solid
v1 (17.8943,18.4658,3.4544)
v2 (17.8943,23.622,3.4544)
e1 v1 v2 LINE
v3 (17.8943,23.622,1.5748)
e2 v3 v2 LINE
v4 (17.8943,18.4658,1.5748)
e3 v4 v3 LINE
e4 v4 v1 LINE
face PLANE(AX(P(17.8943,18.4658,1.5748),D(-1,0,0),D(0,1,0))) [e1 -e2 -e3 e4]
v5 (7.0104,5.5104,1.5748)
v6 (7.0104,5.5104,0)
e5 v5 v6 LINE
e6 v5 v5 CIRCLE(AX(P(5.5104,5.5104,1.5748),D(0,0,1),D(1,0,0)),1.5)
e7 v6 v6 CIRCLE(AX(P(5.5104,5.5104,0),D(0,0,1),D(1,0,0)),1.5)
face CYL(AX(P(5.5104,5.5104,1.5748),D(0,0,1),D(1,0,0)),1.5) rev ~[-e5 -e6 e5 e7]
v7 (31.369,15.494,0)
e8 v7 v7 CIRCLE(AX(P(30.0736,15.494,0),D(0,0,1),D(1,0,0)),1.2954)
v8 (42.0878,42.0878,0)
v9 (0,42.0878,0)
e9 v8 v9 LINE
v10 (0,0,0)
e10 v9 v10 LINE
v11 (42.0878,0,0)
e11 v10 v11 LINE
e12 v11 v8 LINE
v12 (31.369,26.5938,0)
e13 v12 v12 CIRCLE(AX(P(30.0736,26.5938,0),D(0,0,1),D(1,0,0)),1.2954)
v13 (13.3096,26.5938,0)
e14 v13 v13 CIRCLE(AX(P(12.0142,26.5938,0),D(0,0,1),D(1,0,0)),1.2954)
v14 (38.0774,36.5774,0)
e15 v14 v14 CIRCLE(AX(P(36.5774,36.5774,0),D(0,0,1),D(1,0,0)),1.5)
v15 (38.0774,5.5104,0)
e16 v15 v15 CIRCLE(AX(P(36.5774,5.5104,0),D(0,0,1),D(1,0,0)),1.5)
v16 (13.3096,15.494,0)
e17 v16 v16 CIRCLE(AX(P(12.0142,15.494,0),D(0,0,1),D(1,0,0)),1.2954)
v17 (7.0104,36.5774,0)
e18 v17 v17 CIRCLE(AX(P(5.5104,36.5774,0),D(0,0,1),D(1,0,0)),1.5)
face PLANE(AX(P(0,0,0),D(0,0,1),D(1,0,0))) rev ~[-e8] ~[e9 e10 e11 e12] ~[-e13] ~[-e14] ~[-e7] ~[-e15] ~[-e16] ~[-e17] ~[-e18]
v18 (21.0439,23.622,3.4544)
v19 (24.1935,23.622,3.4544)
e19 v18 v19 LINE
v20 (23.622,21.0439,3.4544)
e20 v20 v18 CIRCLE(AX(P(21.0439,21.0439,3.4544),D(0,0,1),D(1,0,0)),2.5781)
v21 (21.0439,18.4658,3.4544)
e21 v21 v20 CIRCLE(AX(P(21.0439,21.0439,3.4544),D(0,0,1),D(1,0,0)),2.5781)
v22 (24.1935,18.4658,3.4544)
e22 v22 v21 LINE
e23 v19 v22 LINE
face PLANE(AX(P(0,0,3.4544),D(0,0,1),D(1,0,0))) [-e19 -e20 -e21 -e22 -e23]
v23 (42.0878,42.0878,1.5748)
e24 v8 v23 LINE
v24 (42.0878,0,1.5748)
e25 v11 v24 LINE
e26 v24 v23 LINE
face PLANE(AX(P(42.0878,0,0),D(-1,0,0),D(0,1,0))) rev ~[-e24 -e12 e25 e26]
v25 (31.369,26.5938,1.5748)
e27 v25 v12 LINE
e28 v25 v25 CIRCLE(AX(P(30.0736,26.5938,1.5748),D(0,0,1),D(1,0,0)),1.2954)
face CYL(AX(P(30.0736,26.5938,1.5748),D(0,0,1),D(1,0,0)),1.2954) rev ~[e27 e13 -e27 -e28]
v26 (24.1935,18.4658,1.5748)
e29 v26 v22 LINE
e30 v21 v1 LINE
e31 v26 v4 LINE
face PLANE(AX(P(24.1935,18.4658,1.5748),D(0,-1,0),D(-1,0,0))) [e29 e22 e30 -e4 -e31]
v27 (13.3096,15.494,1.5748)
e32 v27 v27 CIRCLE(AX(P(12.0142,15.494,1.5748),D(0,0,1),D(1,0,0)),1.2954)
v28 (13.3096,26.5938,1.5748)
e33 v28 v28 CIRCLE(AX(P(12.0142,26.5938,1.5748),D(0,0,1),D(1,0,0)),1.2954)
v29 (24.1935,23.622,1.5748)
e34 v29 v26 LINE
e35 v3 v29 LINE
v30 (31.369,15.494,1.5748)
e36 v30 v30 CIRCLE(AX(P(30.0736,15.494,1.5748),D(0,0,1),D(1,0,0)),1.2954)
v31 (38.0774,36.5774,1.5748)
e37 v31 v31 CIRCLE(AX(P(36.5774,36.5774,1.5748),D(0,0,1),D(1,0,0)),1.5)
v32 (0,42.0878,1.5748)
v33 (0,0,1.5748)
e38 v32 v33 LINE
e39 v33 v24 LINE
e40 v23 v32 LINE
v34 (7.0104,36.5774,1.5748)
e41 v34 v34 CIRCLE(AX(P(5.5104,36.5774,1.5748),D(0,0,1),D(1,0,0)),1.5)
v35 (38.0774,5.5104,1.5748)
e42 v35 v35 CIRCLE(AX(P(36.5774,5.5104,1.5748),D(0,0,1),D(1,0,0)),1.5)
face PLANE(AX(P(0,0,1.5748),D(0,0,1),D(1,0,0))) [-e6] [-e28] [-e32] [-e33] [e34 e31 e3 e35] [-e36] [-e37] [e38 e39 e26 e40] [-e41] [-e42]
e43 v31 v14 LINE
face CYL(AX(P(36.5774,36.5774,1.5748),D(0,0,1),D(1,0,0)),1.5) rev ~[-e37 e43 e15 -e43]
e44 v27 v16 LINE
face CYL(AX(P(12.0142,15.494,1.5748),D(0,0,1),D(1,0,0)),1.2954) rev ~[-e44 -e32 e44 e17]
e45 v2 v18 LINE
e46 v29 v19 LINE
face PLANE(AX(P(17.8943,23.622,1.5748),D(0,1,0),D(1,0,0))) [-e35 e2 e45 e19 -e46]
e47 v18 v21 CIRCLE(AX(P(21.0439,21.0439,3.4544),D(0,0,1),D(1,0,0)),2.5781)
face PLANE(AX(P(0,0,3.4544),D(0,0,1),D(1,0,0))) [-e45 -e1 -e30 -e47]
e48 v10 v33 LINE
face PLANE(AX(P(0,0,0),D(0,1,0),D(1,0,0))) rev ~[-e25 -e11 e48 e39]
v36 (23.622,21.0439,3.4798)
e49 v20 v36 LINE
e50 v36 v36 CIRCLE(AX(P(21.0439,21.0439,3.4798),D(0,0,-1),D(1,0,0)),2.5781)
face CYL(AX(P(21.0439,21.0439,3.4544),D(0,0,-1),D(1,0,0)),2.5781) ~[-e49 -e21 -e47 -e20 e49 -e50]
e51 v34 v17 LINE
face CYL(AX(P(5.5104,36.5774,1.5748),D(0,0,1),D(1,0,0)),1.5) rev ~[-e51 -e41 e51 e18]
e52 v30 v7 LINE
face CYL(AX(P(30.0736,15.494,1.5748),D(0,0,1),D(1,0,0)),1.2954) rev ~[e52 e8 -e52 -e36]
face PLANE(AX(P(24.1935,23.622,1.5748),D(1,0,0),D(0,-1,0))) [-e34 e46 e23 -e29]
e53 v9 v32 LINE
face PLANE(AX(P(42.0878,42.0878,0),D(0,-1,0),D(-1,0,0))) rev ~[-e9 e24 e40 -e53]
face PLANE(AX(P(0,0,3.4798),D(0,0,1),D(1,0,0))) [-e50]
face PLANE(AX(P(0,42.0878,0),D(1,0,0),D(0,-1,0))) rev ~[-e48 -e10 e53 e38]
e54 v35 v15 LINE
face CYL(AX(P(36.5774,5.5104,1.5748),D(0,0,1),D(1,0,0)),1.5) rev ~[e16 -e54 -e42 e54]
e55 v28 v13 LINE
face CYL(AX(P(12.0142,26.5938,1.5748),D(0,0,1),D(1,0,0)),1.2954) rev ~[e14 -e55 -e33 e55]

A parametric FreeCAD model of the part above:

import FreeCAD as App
import Part
import Sketcher
Q = App.Units.Quantity

doc = App.newDocument("Part")
body = doc.addObject("PartDesign::Body", "Body")

# Sketch on XY plane
sketch1 = body.newObject("Sketcher::SketchObject", "Sketch")
sketch1.AttachmentSupport = (doc.getObject("XY_Plane"), [""])
sketch1.MapMode = "FlatFace"
sketch1.addGeometry([
    Part.LineSegment(App.Vector(0, 42.0878, 0), App.Vector(0, 0, 0)),
    Part.LineSegment(App.Vector(0, 0, 0), App.Vector(42.0878, 0, 0)),
    Part.LineSegment(App.Vector(42.0878, 0, 0), App.Vector(42.0878, 42.0878, 0)),
    Part.LineSegment(App.Vector(42.0878, 42.0878, 0), App.Vector(0, 42.0878, 0)),
], False)
sketch1.addConstraint([
    Sketcher.Constraint("Coincident", 0, 2, 1, 1),
    Sketcher.Constraint("Coincident", 1, 2, 2, 1),
    Sketcher.Constraint("Coincident", 2, 2, 3, 1),
    Sketcher.Constraint("Coincident", 3, 2, 0, 1),
    Sketcher.Constraint("Vertical", 0),
    Sketcher.Constraint("Horizontal", 1),
    Sketcher.Constraint("Vertical", 2),
    Sketcher.Constraint("Horizontal", 3),
    Sketcher.Constraint("Coincident", 0, 2, -1, 1),
    Sketcher.Constraint("Equal", 3, 0),
    Sketcher.Constraint("DistanceX", 1, 1, 1, 2, Q("1.657 in")),
])
pad1 = body.newObject("PartDesign::Pad", "Pad")
pad1.Profile = sketch1
pad1.Length = Q("0.062 in")

# Sketch on XY plane
sketch2 = body.newObject("Sketcher::SketchObject", "Sketch001")
sketch2.AttachmentSupport = (doc.getObject("XY_Plane"), [""])
sketch2.MapMode = "FlatFace"
sketch2.AttachmentOffset = App.Placement(App.Vector(0, 0, 0.062 * 25.4), App.Rotation())
sketch2.addGeometry([
    Part.Circle(App.Vector(5.5104, 36.5774, 0), App.Vector(0, 0, 1), 1.5),  # 0
    Part.Circle(App.Vector(36.5774, 36.5774, 0), App.Vector(0, 0, 1), 1.5),  # 1
    Part.Circle(App.Vector(36.5774, 5.5104, 0), App.Vector(0, 0, 1), 1.5),  # 2
    Part.Circle(App.Vector(5.5104, 5.5104, 0), App.Vector(0, 0, 1), 1.5),  # 3
    Part.Circle(App.Vector(12.0142, 26.5938, 0), App.Vector(0, 0, 1), 1.2954),  # 4
    Part.Circle(App.Vector(30.0736, 26.5938, 0), App.Vector(0, 0, 1), 1.2954),  # 5
    Part.Circle(App.Vector(12.0142, 15.494, 0), App.Vector(0, 0, 1), 1.2954),  # 6
    Part.Circle(App.Vector(30.0736, 15.494, 0), App.Vector(0, 0, 1), 1.2954),  # 7
], False)
sketch2.addConstraint([
    Sketcher.Constraint("Equal", 0, 1),
    Sketcher.Constraint("Equal", 1, 2),
    Sketcher.Constraint("Equal", 2, 3),
    Sketcher.Constraint("Equal", 4, 5),
    Sketcher.Constraint("Equal", 5, 6),
    Sketcher.Constraint("Equal", 6, 7),
    Sketcher.Constraint("Horizontal", 0, 3, 1, 3),
    Sketcher.Constraint("Horizontal", 2, 3, 3, 3),
    Sketcher.Constraint("Horizontal", 4, 3, 5, 3),
    Sketcher.Constraint("Horizontal", 6, 3, 7, 3),
    Sketcher.Constraint("Vertical", 1, 3, 2, 3),
    Sketcher.Constraint("Vertical", 0, 3, 3, 3),
    Sketcher.Constraint("Vertical", 4, 3, 6, 3),
    Sketcher.Constraint("Vertical", 5, 3, 7, 3),
    Sketcher.Constraint("Diameter", 4, Q("0.102 in")),
    Sketcher.Constraint("Diameter", 0, Q("0.1181 in")),
    Sketcher.Constraint("DistanceY", -1, 1, 6, 3, Q("0.61 in")),
    Sketcher.Constraint("DistanceX", -1, 1, 4, 3, Q("0.473 in")),
    Sketcher.Constraint("DistanceY", -1, 1, 4, 3, Q("1.047 in")),
    Sketcher.Constraint("DistanceX", -1, 1, 5, 3, Q("1.184 in")),
    Sketcher.Constraint("DistanceX", 0, 3, 1, 3, Q("1.2231 in")),
    Sketcher.Constraint("DistanceY", 2, 3, 1, 3, Q("1.2231 in")),
    Sketcher.Constraint("DistanceX", -1, 1, 0, 3, Q("5.5104 mm")),
    Sketcher.Constraint("DistanceY", -1, 1, 0, 3, Q("36.5774 mm")),
])
pocket1 = body.newObject("PartDesign::Pocket", "Pocket")
pocket1.Profile = sketch2
pocket1.Type = "ThroughAll"

# Sketch on XY plane
sketch3 = body.newObject("Sketcher::SketchObject", "Sketch002")
sketch3.AttachmentSupport = (doc.getObject("XY_Plane"), [""])
sketch3.MapMode = "FlatFace"
sketch3.AttachmentOffset = App.Placement(App.Vector(0, 0, 0.062 * 25.4), App.Rotation())
sketch3.addGeometry([
    Part.LineSegment(App.Vector(24.1935, 23.622, 0), App.Vector(17.8943, 23.622, 0)),
    Part.LineSegment(App.Vector(17.8943, 23.622, 0), App.Vector(17.8943, 18.4658, 0)),
    Part.LineSegment(App.Vector(17.8943, 18.4658, 0), App.Vector(24.1935, 18.4658, 0)),
    Part.LineSegment(App.Vector(24.1935, 18.4658, 0), App.Vector(24.1935, 23.622, 0)),
], False)
sketch3.addConstraint([
    Sketcher.Constraint("Coincident", 0, 2, 1, 1),
    Sketcher.Constraint("Coincident", 1, 2, 2, 1),
    Sketcher.Constraint("Coincident", 2, 2, 3, 1),
    Sketcher.Constraint("Coincident", 3, 2, 0, 1),
    Sketcher.Constraint("Horizontal", 0),
    Sketcher.Constraint("Vertical", 1),
    Sketcher.Constraint("Horizontal", 2),
    Sketcher.Constraint("Vertical", 3),
    Sketcher.Constraint("DistanceX", 0, 2, 0, 1, Q("0.248 in")),
    Sketcher.Constraint("DistanceY", 1, 2, 1, 1, Q("0.203 in")),
    Sketcher.Constraint("DistanceY", -1, 1, 1, 2, Q("0.727 in")),
    Sketcher.Constraint("DistanceX", -1, 1, 0, 2, Q("0.7045 in")),
])
pad2 = body.newObject("PartDesign::Pad", "Pad001")
pad2.Profile = sketch3
pad2.Length = Q("0.074 in")

# Sketch on XY plane
sketch4 = body.newObject("Sketcher::SketchObject", "Sketch003")
sketch4.AttachmentSupport = (doc.getObject("XY_Plane"), [""])
sketch4.MapMode = "FlatFace"
sketch4.AttachmentOffset = App.Placement(App.Vector(0, 0, 0.136 * 25.4), App.Rotation())
sketch4.addGeometry(Part.Circle(App.Vector(21.0439, 21.0439, 0), App.Vector(0, 0, 1), 2.5781), False)
sketch4.addConstraint([
    Sketcher.Constraint("Diameter", 0, Q("0.203 in")),
    Sketcher.Constraint("DistanceX", -1, 1, 0, 3, Q("0.8285 in")),
    Sketcher.Constraint("DistanceY", -1, 1, 0, 3, Q("0.8285 in")),
])
pad3 = body.newObject("PartDesign::Pad", "Pad002")
pad3.Profile = sketch4
pad3.Length = Q("0.001 in")

doc.recompute()
